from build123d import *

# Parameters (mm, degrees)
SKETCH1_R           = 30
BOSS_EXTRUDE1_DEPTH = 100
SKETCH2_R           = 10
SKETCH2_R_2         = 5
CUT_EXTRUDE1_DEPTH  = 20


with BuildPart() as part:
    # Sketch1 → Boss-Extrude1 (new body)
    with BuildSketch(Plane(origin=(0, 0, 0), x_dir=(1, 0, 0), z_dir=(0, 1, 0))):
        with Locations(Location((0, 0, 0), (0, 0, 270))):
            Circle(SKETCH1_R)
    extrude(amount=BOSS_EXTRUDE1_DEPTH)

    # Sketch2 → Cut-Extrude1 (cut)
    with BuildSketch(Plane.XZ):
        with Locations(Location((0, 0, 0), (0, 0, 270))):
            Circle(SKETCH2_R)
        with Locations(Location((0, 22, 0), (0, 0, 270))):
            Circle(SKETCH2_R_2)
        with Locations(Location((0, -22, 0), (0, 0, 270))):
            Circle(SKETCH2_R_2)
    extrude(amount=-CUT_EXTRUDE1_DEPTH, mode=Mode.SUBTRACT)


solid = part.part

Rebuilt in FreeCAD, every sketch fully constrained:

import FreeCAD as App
import Part
import Sketcher

V = App.Vector

doc = App.newDocument("Part")
body = doc.addObject("PartDesign::Body", "Body")

sketch1 = body.newObject("Sketcher::SketchObject", "Sketch")
sketch1.AttachmentSupport = (doc.getObject("XZ_Plane"), [""])
sketch1.MapMode = "FlatFace"
sketch1.addGeometry(Part.Circle(V(0, 0, 0), V(0, 0, 1), 30), False)
sketch1.addConstraint(Sketcher.Constraint("Coincident", 0, 3, -1, 1))
sketch1.addConstraint(Sketcher.Constraint("Diameter", 0, 60.0))
pad1 = body.newObject("PartDesign::Pad", "Pad")
pad1.Profile = sketch1
pad1.Length = 100
pad1.Reversed = True

sketch2 = body.newObject("Sketcher::SketchObject", "Sketch001")
sketch2.AttachmentSupport = (doc.getObject("XZ_Plane"), [""])
sketch2.MapMode = "FlatFace"
sketch2.addGeometry(Part.Circle(V(0, 0, 0), V(0, 0, 1), 10), False)
sketch2.addGeometry(Part.Circle(V(0, 22, 0), V(0, 0, 1), 5), False)
sketch2.addGeometry(Part.Circle(V(0, -22, 0), V(0, 0, 1), 5), False)
sketch2.addConstraint(Sketcher.Constraint("Coincident", 0, 3, -1, 1))
sketch2.addConstraint(Sketcher.Constraint("Equal", 1, 2))
sketch2.addConstraint(Sketcher.Constraint("Symmetric", 1, 3, 2, 3, -1, 1))
sketch2.addConstraint(Sketcher.Constraint("PointOnObject", 1, 3, -2))
sketch2.addConstraint(Sketcher.Constraint("Diameter", 0, 20.0))
sketch2.addConstraint(Sketcher.Constraint("Diameter", 1, 10.0))
sketch2.addConstraint(Sketcher.Constraint("DistanceY", -1, 1, 1, 3, 22.0))
pocket1 = body.newObject("PartDesign::Pocket", "Pocket")
pocket1.Profile = sketch2
pocket1.Length = 20

doc.recompute()
